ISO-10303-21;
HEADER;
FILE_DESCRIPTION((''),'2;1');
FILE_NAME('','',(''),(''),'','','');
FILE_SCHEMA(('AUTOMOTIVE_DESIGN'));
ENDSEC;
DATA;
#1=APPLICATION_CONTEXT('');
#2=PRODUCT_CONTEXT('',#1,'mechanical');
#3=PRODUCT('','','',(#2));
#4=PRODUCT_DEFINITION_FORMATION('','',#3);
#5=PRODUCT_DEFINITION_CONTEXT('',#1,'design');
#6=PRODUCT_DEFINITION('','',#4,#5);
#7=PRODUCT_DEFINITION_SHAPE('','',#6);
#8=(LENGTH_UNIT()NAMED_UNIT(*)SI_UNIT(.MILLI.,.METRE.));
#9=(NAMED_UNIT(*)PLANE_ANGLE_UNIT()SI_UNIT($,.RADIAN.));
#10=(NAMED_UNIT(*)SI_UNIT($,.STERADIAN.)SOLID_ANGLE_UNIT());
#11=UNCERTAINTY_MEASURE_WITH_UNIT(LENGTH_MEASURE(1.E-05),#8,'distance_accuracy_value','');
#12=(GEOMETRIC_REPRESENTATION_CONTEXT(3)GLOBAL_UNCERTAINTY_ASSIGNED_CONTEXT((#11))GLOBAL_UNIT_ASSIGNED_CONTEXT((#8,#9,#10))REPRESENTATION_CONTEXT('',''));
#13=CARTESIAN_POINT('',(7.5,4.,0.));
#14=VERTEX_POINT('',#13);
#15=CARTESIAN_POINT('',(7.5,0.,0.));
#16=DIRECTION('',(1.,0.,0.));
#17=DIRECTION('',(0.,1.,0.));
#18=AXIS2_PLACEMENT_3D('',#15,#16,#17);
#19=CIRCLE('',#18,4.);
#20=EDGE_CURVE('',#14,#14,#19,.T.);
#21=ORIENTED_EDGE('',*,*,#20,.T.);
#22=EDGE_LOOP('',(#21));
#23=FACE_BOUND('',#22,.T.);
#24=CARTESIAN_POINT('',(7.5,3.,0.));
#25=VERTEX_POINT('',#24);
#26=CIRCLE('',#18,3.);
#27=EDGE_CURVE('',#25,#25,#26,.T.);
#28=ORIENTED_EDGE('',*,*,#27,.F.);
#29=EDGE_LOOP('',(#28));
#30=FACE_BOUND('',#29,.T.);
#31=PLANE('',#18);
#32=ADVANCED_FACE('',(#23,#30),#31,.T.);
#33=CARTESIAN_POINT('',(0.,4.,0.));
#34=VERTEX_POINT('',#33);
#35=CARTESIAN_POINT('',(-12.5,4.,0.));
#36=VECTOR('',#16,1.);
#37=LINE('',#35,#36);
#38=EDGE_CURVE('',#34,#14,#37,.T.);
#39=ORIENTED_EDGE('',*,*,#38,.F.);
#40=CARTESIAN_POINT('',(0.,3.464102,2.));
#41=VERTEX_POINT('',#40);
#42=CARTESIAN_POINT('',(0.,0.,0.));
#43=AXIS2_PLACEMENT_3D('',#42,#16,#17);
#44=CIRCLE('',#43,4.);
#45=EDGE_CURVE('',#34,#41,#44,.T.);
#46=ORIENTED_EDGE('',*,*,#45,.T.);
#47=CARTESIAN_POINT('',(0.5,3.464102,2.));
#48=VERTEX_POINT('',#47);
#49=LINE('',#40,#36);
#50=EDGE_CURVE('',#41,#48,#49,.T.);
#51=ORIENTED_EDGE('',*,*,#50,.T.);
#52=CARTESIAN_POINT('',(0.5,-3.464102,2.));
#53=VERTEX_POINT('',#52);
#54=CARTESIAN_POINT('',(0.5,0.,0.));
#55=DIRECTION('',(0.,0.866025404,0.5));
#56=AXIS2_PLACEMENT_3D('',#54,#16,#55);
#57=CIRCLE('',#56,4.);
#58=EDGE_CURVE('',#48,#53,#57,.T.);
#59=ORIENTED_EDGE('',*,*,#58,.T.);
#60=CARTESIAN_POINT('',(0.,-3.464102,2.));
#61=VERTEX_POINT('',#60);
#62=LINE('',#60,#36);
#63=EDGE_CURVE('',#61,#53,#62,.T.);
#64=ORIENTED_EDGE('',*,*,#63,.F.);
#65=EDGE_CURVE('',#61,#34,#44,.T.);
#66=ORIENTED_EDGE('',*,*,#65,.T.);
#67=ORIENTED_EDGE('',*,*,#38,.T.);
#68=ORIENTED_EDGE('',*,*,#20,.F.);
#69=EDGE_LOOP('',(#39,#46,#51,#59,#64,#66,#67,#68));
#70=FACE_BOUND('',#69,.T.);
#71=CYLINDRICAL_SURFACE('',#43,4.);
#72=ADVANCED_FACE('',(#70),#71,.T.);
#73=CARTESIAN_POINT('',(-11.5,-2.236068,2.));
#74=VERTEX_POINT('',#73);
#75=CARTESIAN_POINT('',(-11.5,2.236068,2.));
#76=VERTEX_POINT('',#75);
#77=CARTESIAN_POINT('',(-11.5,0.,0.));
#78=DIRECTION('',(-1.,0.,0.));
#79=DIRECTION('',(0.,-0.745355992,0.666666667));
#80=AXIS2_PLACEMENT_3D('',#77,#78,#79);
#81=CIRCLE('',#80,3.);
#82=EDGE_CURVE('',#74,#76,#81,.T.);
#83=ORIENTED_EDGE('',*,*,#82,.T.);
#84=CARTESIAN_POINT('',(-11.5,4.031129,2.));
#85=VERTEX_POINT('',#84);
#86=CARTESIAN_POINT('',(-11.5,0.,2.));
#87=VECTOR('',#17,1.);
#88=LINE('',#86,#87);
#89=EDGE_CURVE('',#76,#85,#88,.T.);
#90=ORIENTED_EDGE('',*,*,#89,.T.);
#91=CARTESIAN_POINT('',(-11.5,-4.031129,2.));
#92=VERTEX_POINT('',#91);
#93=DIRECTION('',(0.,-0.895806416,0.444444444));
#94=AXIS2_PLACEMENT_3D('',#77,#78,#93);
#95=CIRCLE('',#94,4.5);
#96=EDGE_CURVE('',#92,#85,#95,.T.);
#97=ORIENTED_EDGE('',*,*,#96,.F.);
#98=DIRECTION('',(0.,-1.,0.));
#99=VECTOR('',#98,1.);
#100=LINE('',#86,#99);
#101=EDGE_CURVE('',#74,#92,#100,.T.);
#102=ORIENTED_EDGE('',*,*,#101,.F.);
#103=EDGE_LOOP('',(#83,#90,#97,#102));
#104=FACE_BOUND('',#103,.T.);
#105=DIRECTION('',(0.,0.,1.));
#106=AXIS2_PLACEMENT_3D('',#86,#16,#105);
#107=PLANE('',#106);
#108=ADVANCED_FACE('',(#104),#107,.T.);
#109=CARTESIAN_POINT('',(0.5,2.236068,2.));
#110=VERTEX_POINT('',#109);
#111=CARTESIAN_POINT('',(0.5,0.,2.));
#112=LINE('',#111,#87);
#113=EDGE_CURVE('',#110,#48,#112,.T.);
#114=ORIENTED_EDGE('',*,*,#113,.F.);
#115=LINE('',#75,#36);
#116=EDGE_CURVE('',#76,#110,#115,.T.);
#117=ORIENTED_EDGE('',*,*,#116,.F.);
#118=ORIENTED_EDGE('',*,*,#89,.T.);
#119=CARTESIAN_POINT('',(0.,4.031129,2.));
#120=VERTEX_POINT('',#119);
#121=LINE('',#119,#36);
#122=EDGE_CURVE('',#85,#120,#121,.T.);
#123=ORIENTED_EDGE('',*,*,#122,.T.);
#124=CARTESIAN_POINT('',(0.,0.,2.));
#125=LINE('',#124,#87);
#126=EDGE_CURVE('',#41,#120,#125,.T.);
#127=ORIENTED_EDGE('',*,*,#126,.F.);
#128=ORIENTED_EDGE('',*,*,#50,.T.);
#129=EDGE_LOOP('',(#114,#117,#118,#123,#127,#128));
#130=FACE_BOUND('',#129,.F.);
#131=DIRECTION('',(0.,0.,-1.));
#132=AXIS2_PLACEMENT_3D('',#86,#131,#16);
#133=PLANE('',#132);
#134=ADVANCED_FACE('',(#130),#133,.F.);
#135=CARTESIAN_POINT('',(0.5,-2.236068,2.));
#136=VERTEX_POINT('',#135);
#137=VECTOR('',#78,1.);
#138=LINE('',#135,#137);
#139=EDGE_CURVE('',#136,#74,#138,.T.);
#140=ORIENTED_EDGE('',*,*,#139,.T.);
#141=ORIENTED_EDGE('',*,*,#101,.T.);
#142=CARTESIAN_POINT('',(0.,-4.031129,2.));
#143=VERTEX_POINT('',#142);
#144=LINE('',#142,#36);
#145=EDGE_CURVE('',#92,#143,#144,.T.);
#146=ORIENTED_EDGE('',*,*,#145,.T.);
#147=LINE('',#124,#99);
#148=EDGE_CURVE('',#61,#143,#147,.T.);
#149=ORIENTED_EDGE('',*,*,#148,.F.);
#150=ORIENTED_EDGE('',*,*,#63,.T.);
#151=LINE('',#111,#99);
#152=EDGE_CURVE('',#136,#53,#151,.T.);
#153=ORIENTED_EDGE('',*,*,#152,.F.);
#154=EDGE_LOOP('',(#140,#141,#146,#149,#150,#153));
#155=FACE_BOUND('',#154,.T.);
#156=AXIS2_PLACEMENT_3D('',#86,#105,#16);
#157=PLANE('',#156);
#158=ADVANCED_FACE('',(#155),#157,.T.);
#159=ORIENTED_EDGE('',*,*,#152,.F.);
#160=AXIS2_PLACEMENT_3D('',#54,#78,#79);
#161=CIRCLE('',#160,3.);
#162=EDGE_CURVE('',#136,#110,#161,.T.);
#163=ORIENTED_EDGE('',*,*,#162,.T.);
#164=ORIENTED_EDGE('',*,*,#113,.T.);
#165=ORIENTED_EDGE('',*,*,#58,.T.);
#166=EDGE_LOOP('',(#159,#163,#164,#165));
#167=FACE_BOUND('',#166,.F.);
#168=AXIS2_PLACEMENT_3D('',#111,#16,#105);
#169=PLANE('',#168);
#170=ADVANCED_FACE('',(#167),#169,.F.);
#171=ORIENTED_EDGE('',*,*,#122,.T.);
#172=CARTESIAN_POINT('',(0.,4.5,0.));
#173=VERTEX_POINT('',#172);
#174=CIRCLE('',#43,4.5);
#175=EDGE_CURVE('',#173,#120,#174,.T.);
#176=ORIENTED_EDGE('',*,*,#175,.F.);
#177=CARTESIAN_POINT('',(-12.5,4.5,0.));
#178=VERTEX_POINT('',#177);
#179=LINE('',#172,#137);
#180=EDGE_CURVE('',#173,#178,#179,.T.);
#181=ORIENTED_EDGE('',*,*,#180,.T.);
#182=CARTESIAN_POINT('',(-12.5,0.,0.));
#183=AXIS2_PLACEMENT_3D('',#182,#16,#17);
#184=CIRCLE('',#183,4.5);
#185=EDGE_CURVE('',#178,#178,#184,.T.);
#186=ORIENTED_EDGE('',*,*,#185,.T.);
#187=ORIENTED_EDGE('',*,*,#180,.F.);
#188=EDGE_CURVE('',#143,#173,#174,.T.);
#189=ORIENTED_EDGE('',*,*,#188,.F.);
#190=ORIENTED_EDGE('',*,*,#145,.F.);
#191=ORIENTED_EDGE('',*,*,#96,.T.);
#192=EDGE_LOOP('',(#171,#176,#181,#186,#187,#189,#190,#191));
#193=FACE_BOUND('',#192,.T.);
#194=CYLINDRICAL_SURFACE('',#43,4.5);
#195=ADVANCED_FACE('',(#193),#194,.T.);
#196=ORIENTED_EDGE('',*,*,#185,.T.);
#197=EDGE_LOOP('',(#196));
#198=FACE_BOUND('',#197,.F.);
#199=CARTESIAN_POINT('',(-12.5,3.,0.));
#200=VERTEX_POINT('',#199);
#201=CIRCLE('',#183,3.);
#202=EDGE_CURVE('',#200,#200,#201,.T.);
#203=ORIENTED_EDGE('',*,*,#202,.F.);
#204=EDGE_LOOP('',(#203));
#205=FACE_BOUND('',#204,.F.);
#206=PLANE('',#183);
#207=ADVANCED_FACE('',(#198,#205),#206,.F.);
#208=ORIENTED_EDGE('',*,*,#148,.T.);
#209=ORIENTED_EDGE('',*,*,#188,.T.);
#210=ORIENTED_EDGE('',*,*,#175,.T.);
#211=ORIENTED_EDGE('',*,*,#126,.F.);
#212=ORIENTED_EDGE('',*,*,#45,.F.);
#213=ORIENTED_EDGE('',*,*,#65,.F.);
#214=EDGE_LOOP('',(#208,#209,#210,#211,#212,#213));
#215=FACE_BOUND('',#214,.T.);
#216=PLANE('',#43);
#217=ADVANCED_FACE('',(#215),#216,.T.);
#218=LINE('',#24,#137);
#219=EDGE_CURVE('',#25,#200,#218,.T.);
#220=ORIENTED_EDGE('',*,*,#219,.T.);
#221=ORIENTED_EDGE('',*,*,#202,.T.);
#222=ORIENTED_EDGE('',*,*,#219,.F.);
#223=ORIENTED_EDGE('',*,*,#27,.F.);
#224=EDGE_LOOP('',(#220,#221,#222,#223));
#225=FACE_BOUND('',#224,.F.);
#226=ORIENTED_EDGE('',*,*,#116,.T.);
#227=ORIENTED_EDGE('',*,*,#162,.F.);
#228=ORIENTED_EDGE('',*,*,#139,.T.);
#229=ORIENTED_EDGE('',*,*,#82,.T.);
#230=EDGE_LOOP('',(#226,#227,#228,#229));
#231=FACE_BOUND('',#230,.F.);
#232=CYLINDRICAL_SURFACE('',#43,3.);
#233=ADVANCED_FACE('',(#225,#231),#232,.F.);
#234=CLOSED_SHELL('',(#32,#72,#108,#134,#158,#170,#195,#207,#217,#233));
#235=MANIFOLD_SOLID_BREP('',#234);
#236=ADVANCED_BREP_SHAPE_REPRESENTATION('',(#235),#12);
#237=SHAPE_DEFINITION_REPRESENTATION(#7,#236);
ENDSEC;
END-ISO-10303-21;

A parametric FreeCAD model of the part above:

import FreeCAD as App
import Part
import Sketcher
from FreeCAD import Vector

doc = App.newDocument("Part")
body = doc.addObject("PartDesign::Body", "Body")

sketch1 = doc.addObject("Sketcher::SketchObject", "Sketch")
body.addObject(sketch1)
sketch1.AttachmentSupport = (doc.YZ_Plane, [""])
sketch1.MapMode = "FlatFace"
sketch1.addGeometry(Part.Circle(Vector(0, 0, 0), Vector(0, 0, 1), 4), False)
sketch1.addGeometry(Part.Circle(Vector(0, 0, 0), Vector(0, 0, 1), 3), False)
sketch1.addConstraint(Sketcher.Constraint("Coincident", 0, 3, -1, 1))
sketch1.addConstraint(Sketcher.Constraint("Coincident", 1, 3, -1, 1))
sketch1.addConstraint(Sketcher.Constraint("Diameter", 0, 8.0))
sketch1.addConstraint(Sketcher.Constraint("Diameter", 1, 6.0))
pad1 = doc.addObject("PartDesign::Pad", "Pad")
body.addObject(pad1)
pad1.Profile = sketch1
pad1.Type = "TwoLengths"
pad1.Length = 7.5
pad1.Length2 = 12.5

sketch2 = doc.addObject("Sketcher::SketchObject", "Sketch001")
body.addObject(sketch2)
sketch2.AttachmentSupport = (doc.YZ_Plane, [""])
sketch2.MapMode = "FlatFace"
sketch2.addGeometry(Part.Circle(Vector(0, 0, 0), Vector(0, 0, 1), 4.5), False)
sketch2.addGeometry(Part.Circle(Vector(0, 0, 0), Vector(0, 0, 1), 4), False)
sketch2.addConstraint(Sketcher.Constraint("Coincident", 0, 3, -1, 1))
sketch2.addConstraint(Sketcher.Constraint("Coincident", 1, 3, -1, 1))
sketch2.addConstraint(Sketcher.Constraint("Diameter", 0, 9.0))
sketch2.addConstraint(Sketcher.Constraint("Diameter", 1, 8.0))
pad2 = doc.addObject("PartDesign::Pad", "Pad001")
body.addObject(pad2)
pad2.Profile = sketch2
pad2.Length = 12.5
pad2.Reversed = True

sketch3 = doc.addObject("Sketcher::SketchObject", "Sketch002")
body.addObject(sketch3)
sketch3.AttachmentSupport = (doc.XZ_Plane, [""])
sketch3.MapMode = "FlatFace"
sketch3.addGeometry(Part.LineSegment(Vector(-12, 11, 0), Vector(-12, 2, 0)), False)
sketch3.addGeometry(Part.LineSegment(Vector(-12, 2, 0), Vector(0, 2, 0)), False)
sketch3.addGeometry(Part.LineSegment(Vector(0, 2, 0), Vector(0, 11, 0)), False)
sketch3.addGeometry(Part.LineSegment(Vector(0, 11, 0), Vector(-12, 11, 0)), False)
sketch3.addConstraint(Sketcher.Constraint("Coincident", 0, 2, 1, 1))
sketch3.addConstraint(Sketcher.Constraint("Coincident", 1, 2, 2, 1))
sketch3.addConstraint(Sketcher.Constraint("Coincident", 2, 2, 3, 1))
sketch3.addConstraint(Sketcher.Constraint("Coincident", 3, 2, 0, 1))
sketch3.addConstraint(Sketcher.Constraint("Vertical", 0))
sketch3.addConstraint(Sketcher.Constraint("Horizontal", 1))
sketch3.addConstraint(Sketcher.Constraint("Vertical", 2))
sketch3.addConstraint(Sketcher.Constraint("Horizontal", 3))
sketch3.addConstraint(Sketcher.Constraint("DistanceX", 1, 1, 1, 2, 12.0))
sketch3.addConstraint(Sketcher.Constraint("DistanceY", -1, 1, 0, 2, 2.0))
sketch3.addConstraint(Sketcher.Constraint("DistanceX", 0, 2, -1, 1, 11.5))
sketch3.addConstraint(Sketcher.Constraint("DistanceY", 0, 2, 0, 1, 9.086956))
pocket1 = doc.addObject("PartDesign::Pocket", "Pocket")
body.addObject(pocket1)
pocket1.Profile = sketch3
pocket1.Type = "ThroughAll"
pocket1.Midplane = True

doc.recompute()
